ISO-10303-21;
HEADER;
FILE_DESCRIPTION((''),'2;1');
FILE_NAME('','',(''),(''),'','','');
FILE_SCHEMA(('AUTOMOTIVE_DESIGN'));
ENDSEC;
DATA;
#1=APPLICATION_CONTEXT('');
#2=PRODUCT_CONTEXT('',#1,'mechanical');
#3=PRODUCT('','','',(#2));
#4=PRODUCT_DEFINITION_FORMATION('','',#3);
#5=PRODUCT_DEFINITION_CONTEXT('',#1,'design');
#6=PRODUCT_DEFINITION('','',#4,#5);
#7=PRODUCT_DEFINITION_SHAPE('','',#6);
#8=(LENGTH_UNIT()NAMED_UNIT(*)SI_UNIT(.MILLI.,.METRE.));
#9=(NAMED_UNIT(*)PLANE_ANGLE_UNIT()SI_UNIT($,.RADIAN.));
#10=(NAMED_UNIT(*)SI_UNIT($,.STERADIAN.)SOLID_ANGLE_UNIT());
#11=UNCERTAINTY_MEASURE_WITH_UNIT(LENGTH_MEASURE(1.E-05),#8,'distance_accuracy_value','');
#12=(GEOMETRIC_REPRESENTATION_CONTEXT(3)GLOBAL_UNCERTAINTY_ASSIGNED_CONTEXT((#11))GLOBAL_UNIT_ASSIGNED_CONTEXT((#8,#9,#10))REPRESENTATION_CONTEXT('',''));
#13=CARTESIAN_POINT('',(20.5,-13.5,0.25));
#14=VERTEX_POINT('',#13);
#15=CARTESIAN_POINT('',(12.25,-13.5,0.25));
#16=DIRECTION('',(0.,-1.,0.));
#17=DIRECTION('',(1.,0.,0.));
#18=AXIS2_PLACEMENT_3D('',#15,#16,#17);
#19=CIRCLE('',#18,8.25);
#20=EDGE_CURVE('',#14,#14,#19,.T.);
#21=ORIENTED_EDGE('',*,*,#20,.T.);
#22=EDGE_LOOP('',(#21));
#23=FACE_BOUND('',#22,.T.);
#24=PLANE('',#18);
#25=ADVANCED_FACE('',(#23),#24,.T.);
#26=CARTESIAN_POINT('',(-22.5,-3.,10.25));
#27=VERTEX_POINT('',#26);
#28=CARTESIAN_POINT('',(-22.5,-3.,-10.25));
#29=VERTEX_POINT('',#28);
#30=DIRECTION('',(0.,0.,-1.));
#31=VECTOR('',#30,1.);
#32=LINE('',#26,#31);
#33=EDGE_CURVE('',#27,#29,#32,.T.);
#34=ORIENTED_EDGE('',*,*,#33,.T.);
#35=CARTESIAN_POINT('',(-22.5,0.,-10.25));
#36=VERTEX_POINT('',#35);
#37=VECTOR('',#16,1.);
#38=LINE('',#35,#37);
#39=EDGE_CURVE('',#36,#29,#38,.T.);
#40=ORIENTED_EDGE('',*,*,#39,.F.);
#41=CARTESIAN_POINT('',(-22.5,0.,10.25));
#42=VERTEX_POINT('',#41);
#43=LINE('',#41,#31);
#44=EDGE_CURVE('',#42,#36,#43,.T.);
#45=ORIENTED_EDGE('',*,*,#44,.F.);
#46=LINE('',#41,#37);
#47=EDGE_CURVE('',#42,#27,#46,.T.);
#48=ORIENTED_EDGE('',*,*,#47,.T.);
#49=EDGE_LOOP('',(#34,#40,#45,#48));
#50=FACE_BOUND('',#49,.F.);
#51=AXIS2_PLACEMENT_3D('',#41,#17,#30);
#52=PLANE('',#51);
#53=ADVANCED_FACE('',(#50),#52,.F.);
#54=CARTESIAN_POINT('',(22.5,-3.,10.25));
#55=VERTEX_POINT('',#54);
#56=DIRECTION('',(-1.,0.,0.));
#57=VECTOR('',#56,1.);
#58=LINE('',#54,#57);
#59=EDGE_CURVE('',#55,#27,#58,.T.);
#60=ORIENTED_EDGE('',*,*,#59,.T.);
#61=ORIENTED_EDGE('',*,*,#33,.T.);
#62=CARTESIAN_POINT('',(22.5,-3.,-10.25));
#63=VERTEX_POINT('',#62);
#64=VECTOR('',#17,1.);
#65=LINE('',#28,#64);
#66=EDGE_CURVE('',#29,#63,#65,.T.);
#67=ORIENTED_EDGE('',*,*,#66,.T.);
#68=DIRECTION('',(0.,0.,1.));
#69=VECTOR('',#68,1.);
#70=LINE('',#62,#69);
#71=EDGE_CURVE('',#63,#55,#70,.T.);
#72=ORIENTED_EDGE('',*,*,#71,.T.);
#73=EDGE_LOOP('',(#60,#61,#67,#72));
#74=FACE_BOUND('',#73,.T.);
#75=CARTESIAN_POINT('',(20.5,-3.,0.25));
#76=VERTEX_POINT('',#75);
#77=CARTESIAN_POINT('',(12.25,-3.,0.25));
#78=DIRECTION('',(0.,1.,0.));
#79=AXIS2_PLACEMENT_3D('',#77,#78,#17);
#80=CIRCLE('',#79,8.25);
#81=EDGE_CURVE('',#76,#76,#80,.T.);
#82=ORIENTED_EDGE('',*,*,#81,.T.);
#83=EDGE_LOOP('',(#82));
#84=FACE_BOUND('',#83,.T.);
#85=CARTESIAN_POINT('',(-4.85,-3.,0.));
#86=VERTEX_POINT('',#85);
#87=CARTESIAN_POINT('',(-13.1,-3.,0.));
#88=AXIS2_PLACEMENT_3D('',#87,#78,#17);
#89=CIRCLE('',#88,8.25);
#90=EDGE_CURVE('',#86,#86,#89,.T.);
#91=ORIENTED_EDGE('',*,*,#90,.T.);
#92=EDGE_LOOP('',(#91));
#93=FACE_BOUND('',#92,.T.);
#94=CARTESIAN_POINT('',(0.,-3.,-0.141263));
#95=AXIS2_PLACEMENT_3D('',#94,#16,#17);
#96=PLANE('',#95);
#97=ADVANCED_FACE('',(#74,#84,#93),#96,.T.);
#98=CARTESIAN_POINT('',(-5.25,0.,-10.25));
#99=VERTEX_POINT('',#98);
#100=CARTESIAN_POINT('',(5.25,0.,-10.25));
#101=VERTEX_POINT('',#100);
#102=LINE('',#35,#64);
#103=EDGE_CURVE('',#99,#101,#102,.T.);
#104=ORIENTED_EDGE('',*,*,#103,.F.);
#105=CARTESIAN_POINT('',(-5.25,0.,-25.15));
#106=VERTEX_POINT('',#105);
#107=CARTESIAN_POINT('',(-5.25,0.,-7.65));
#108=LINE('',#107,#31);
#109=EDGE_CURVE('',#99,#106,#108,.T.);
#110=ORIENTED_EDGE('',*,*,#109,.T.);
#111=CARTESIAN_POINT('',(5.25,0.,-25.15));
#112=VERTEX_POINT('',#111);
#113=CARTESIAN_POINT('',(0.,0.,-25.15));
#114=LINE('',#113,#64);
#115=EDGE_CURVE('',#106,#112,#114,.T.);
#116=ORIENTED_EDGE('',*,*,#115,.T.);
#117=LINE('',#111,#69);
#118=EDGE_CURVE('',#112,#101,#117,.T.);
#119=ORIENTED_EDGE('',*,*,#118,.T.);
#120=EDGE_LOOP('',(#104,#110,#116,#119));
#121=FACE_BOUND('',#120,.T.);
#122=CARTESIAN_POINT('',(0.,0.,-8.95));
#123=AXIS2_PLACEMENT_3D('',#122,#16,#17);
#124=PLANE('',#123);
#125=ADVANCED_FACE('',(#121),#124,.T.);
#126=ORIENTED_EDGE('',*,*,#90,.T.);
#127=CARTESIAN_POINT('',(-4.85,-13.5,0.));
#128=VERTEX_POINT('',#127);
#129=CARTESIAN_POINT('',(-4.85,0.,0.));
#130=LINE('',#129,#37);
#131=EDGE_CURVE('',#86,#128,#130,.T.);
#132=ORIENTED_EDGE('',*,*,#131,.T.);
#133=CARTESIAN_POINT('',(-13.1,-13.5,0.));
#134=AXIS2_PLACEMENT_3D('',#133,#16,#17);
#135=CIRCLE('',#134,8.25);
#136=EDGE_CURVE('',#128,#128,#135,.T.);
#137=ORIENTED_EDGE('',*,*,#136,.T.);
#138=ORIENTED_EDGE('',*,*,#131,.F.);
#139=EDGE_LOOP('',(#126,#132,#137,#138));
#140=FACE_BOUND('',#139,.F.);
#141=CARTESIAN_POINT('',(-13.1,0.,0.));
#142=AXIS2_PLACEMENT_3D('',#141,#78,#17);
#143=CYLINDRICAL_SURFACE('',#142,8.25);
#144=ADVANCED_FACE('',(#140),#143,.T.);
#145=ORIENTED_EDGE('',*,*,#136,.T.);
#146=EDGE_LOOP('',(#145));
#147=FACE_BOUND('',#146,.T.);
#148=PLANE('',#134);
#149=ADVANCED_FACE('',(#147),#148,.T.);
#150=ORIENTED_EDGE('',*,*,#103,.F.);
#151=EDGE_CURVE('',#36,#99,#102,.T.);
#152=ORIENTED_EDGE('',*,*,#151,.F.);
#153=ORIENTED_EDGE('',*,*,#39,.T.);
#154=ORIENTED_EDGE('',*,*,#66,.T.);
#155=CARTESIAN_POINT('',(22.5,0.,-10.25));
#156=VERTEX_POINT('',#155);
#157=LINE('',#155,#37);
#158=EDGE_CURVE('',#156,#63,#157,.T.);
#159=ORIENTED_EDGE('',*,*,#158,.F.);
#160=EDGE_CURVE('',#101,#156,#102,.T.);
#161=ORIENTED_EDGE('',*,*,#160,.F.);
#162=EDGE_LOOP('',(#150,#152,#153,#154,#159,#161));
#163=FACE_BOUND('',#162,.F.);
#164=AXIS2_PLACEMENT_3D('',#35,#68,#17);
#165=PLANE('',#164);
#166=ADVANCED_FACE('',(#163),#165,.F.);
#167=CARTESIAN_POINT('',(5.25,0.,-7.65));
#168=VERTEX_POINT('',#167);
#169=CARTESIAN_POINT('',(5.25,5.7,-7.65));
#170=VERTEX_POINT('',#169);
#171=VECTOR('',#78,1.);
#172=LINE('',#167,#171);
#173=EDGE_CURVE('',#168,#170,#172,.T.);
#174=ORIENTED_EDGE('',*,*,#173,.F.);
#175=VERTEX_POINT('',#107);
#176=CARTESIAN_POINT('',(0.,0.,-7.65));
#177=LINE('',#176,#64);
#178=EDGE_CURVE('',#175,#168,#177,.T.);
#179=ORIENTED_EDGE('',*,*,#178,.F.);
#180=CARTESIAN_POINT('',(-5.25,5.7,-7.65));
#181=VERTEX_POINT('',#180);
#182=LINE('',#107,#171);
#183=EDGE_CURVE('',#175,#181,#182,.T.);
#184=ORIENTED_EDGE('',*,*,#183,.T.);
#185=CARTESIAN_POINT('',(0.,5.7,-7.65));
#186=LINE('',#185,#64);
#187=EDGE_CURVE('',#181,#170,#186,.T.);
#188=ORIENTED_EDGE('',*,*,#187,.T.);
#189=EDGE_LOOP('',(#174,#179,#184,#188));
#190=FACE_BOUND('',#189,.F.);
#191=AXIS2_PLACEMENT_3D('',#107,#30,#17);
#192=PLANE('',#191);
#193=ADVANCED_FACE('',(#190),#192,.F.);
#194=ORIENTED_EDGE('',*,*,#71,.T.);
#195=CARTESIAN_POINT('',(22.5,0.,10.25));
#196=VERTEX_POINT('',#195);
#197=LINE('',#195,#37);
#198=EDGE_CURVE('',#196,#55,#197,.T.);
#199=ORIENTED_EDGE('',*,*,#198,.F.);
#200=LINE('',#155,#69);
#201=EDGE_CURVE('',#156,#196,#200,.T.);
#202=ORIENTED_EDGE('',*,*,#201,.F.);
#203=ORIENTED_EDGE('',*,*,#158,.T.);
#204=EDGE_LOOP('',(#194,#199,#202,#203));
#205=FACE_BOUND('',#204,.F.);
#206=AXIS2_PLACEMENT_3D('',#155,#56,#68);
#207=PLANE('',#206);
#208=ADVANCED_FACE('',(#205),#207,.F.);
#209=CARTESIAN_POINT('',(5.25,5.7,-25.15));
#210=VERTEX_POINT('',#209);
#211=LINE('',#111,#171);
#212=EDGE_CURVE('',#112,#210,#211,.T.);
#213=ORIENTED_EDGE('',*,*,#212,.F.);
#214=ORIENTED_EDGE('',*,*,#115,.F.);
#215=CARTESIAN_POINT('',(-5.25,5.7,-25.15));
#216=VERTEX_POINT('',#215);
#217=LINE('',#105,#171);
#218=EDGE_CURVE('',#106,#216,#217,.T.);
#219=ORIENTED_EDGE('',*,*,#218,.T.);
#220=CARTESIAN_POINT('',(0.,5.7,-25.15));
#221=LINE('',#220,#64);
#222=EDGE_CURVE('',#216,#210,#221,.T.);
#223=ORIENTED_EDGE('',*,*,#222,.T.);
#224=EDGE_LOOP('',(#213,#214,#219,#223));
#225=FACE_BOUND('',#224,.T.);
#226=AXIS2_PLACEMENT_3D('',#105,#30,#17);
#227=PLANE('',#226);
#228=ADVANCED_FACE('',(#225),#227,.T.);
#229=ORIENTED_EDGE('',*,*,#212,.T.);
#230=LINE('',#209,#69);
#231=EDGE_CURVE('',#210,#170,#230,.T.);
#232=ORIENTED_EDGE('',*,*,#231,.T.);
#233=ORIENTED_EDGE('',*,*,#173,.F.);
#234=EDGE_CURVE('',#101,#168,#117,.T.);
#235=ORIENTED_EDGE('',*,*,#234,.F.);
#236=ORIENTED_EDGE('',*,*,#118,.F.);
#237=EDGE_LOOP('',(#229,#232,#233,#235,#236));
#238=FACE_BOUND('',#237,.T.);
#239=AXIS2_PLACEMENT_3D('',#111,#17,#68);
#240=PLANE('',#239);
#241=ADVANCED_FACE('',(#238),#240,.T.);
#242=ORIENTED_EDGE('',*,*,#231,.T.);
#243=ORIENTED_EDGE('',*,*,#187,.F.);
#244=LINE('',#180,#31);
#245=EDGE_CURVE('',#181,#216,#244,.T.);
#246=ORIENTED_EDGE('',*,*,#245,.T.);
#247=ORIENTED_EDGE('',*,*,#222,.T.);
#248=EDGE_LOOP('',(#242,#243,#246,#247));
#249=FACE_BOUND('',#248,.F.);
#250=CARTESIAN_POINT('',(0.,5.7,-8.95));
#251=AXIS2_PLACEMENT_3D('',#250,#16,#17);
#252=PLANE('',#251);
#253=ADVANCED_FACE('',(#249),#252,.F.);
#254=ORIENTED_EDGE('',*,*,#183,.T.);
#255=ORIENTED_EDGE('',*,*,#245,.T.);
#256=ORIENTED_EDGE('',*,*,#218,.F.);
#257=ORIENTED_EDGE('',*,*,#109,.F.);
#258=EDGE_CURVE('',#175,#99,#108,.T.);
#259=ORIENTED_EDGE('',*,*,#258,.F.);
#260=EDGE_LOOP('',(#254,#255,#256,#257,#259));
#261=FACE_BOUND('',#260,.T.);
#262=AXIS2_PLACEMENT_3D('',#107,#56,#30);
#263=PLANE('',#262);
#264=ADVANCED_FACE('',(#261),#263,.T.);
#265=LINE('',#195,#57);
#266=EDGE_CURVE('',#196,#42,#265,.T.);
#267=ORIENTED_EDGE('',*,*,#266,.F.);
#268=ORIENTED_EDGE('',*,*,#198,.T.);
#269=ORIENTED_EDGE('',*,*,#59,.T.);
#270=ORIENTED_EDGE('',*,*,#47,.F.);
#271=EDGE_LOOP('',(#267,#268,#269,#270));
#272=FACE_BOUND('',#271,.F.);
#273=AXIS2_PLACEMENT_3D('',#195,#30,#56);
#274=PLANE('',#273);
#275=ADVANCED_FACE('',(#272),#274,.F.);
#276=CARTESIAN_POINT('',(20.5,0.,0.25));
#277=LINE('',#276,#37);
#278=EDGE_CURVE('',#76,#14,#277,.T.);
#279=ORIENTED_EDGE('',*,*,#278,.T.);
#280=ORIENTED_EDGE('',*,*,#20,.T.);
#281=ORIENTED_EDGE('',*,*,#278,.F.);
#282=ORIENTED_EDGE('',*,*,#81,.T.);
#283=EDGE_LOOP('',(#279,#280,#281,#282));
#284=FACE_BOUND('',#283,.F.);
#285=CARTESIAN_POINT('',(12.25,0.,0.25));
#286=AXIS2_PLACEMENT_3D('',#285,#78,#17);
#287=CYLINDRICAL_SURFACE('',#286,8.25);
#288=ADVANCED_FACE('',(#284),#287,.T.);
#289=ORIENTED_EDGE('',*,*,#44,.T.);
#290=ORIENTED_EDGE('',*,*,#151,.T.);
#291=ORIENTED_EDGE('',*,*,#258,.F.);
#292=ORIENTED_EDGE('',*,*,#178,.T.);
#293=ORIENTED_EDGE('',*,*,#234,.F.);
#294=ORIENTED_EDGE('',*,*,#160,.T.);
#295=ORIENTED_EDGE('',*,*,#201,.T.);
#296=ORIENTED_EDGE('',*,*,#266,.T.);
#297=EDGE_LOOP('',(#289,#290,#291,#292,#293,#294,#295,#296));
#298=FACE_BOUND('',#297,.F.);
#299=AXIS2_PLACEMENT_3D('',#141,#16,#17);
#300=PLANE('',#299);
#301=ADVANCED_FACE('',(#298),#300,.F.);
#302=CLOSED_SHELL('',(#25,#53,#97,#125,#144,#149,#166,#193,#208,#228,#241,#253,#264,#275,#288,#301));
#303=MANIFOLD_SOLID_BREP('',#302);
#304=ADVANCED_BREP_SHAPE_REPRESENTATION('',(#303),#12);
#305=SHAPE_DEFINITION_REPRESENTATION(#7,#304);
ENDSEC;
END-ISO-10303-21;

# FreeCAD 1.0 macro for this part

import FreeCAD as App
import Part
import Sketcher

doc = App.newDocument("Part")
params = doc.addObject("Spreadsheet::Sheet", "Params")
for row, (alias, value) in enumerate([
    ("sketch1_width", "45 mm"),
    ("sketch1_height", "20.5 mm"),
    ("pad1_length", "3 mm"),
    ("sketch2_width", "10.5 mm"),
    ("sketch2_height", "17.5 mm"),
    ("pad2_length", "5.7 mm"),
    ("sketch3_diameter", "16.5 mm"),
    ("pad3_length", "13.5 mm"),
], start=1):
    params.set(f"A{row}", alias)
    params.set(f"B{row}", "=" + value)
    params.setAlias(f"B{row}", alias)

body = doc.addObject("PartDesign::Body", "Body")

# Sketch on XZ plane
sketch1 = body.newObject("Sketcher::SketchObject", "Sketch")
sketch1.AttachmentSupport = (doc.getObject("XZ_Plane"), [""])
sketch1.MapMode = "FlatFace"
sketch1.addGeometry([
    Part.LineSegment(App.Vector(22.5, -10.25, 0), App.Vector(22.5, 10.25, 0)),
    Part.LineSegment(App.Vector(22.5, 10.25, 0), App.Vector(-22.5, 10.25, 0)),
    Part.LineSegment(App.Vector(-22.5, 10.25, 0), App.Vector(-22.5, -10.25, 0)),
    Part.LineSegment(App.Vector(-22.5, -10.25, 0), App.Vector(22.5, -10.25, 0)),
], False)
sketch1.addConstraint([
    Sketcher.Constraint("Coincident", 0, 2, 1, 1),
    Sketcher.Constraint("Coincident", 1, 2, 2, 1),
    Sketcher.Constraint("Coincident", 2, 2, 3, 1),
    Sketcher.Constraint("Coincident", 3, 2, 0, 1),
    Sketcher.Constraint("Vertical", 0),
    Sketcher.Constraint("Horizontal", 1),
    Sketcher.Constraint("Vertical", 2),
    Sketcher.Constraint("Horizontal", 3),
    Sketcher.Constraint("Symmetric", 0, 2, 2, 2, -1, 1),
    Sketcher.Constraint("DistanceX", 1, 2, 1, 1, 45.0),
    Sketcher.Constraint("DistanceY", 0, 1, 0, 2, 20.5),
])
sketch1.setExpression("Constraints[9]", "Params.sketch1_width")
sketch1.setExpression("Constraints[10]", "Params.sketch1_height")
pad1 = body.newObject("PartDesign::Pad", "Pad")
pad1.Profile = sketch1
pad1.setExpression("Length", "Params.pad1_length")

# Sketch on XZ plane
sketch2 = body.newObject("Sketcher::SketchObject", "Sketch001")
sketch2.AttachmentSupport = (doc.getObject("XZ_Plane"), [""])
sketch2.MapMode = "FlatFace"
sketch2.addGeometry([
    Part.LineSegment(App.Vector(-5.25, -7.65, 0), App.Vector(-5.25, -25.15, 0)),
    Part.LineSegment(App.Vector(-5.25, -25.15, 0), App.Vector(5.25, -25.15, 0)),
    Part.LineSegment(App.Vector(5.25, -25.15, 0), App.Vector(5.25, -7.65, 0)),
    Part.LineSegment(App.Vector(5.25, -7.65, 0), App.Vector(-5.25, -7.65, 0)),
], False)
sketch2.addConstraint([
    Sketcher.Constraint("Coincident", 0, 2, 1, 1),
    Sketcher.Constraint("Coincident", 1, 2, 2, 1),
    Sketcher.Constraint("Coincident", 2, 2, 3, 1),
    Sketcher.Constraint("Coincident", 3, 2, 0, 1),
    Sketcher.Constraint("Vertical", 0),
    Sketcher.Constraint("Horizontal", 1),
    Sketcher.Constraint("Vertical", 2),
    Sketcher.Constraint("Horizontal", 3),
    Sketcher.Constraint("DistanceX", 1, 1, 1, 2, 10.5),
    Sketcher.Constraint("DistanceY", 0, 2, 0, 1, 17.5),
    Sketcher.Constraint("DistanceX", 0, 2, -1, 1, 5.25),
    Sketcher.Constraint("DistanceY", 0, 2, -1, 1, 25.15),
])
sketch2.setExpression("Constraints[8]", "Params.sketch2_width")
sketch2.setExpression("Constraints[9]", "Params.sketch2_height")
pad2 = body.newObject("PartDesign::Pad", "Pad001")
pad2.Profile = sketch2
pad2.setExpression("Length", "Params.pad2_length")
pad2.Reversed = True

# Sketch on XZ plane
sketch3 = body.newObject("Sketcher::SketchObject", "Sketch002")
sketch3.AttachmentSupport = (doc.getObject("XZ_Plane"), [""])
sketch3.MapMode = "FlatFace"
sketch3.addGeometry([
    Part.Circle(App.Vector(-13.1, 0, 0), App.Vector(0, 0, 1), 8.25),
    Part.Circle(App.Vector(12.25, 0.25, 0), App.Vector(0, 0, 1), 8.25),
], False)
sketch3.addConstraint([
    Sketcher.Constraint("Equal", 0, 1),
    Sketcher.Constraint("PointOnObject", 0, 3, -1),
    Sketcher.Constraint("Diameter", 0, 16.5),
    Sketcher.Constraint("DistanceX", 0, 3, -1, 1, 13.1),
    Sketcher.Constraint("DistanceX", -1, 1, 1, 3, 12.25),
    Sketcher.Constraint("DistanceY", -1, 1, 1, 3, 0.25),
])
sketch3.setExpression("Constraints[2]", "Params.sketch3_diameter")
pad3 = body.newObject("PartDesign::Pad", "Pad002")
pad3.Profile = sketch3
pad3.setExpression("Length", "Params.pad3_length")

doc.recompute()
